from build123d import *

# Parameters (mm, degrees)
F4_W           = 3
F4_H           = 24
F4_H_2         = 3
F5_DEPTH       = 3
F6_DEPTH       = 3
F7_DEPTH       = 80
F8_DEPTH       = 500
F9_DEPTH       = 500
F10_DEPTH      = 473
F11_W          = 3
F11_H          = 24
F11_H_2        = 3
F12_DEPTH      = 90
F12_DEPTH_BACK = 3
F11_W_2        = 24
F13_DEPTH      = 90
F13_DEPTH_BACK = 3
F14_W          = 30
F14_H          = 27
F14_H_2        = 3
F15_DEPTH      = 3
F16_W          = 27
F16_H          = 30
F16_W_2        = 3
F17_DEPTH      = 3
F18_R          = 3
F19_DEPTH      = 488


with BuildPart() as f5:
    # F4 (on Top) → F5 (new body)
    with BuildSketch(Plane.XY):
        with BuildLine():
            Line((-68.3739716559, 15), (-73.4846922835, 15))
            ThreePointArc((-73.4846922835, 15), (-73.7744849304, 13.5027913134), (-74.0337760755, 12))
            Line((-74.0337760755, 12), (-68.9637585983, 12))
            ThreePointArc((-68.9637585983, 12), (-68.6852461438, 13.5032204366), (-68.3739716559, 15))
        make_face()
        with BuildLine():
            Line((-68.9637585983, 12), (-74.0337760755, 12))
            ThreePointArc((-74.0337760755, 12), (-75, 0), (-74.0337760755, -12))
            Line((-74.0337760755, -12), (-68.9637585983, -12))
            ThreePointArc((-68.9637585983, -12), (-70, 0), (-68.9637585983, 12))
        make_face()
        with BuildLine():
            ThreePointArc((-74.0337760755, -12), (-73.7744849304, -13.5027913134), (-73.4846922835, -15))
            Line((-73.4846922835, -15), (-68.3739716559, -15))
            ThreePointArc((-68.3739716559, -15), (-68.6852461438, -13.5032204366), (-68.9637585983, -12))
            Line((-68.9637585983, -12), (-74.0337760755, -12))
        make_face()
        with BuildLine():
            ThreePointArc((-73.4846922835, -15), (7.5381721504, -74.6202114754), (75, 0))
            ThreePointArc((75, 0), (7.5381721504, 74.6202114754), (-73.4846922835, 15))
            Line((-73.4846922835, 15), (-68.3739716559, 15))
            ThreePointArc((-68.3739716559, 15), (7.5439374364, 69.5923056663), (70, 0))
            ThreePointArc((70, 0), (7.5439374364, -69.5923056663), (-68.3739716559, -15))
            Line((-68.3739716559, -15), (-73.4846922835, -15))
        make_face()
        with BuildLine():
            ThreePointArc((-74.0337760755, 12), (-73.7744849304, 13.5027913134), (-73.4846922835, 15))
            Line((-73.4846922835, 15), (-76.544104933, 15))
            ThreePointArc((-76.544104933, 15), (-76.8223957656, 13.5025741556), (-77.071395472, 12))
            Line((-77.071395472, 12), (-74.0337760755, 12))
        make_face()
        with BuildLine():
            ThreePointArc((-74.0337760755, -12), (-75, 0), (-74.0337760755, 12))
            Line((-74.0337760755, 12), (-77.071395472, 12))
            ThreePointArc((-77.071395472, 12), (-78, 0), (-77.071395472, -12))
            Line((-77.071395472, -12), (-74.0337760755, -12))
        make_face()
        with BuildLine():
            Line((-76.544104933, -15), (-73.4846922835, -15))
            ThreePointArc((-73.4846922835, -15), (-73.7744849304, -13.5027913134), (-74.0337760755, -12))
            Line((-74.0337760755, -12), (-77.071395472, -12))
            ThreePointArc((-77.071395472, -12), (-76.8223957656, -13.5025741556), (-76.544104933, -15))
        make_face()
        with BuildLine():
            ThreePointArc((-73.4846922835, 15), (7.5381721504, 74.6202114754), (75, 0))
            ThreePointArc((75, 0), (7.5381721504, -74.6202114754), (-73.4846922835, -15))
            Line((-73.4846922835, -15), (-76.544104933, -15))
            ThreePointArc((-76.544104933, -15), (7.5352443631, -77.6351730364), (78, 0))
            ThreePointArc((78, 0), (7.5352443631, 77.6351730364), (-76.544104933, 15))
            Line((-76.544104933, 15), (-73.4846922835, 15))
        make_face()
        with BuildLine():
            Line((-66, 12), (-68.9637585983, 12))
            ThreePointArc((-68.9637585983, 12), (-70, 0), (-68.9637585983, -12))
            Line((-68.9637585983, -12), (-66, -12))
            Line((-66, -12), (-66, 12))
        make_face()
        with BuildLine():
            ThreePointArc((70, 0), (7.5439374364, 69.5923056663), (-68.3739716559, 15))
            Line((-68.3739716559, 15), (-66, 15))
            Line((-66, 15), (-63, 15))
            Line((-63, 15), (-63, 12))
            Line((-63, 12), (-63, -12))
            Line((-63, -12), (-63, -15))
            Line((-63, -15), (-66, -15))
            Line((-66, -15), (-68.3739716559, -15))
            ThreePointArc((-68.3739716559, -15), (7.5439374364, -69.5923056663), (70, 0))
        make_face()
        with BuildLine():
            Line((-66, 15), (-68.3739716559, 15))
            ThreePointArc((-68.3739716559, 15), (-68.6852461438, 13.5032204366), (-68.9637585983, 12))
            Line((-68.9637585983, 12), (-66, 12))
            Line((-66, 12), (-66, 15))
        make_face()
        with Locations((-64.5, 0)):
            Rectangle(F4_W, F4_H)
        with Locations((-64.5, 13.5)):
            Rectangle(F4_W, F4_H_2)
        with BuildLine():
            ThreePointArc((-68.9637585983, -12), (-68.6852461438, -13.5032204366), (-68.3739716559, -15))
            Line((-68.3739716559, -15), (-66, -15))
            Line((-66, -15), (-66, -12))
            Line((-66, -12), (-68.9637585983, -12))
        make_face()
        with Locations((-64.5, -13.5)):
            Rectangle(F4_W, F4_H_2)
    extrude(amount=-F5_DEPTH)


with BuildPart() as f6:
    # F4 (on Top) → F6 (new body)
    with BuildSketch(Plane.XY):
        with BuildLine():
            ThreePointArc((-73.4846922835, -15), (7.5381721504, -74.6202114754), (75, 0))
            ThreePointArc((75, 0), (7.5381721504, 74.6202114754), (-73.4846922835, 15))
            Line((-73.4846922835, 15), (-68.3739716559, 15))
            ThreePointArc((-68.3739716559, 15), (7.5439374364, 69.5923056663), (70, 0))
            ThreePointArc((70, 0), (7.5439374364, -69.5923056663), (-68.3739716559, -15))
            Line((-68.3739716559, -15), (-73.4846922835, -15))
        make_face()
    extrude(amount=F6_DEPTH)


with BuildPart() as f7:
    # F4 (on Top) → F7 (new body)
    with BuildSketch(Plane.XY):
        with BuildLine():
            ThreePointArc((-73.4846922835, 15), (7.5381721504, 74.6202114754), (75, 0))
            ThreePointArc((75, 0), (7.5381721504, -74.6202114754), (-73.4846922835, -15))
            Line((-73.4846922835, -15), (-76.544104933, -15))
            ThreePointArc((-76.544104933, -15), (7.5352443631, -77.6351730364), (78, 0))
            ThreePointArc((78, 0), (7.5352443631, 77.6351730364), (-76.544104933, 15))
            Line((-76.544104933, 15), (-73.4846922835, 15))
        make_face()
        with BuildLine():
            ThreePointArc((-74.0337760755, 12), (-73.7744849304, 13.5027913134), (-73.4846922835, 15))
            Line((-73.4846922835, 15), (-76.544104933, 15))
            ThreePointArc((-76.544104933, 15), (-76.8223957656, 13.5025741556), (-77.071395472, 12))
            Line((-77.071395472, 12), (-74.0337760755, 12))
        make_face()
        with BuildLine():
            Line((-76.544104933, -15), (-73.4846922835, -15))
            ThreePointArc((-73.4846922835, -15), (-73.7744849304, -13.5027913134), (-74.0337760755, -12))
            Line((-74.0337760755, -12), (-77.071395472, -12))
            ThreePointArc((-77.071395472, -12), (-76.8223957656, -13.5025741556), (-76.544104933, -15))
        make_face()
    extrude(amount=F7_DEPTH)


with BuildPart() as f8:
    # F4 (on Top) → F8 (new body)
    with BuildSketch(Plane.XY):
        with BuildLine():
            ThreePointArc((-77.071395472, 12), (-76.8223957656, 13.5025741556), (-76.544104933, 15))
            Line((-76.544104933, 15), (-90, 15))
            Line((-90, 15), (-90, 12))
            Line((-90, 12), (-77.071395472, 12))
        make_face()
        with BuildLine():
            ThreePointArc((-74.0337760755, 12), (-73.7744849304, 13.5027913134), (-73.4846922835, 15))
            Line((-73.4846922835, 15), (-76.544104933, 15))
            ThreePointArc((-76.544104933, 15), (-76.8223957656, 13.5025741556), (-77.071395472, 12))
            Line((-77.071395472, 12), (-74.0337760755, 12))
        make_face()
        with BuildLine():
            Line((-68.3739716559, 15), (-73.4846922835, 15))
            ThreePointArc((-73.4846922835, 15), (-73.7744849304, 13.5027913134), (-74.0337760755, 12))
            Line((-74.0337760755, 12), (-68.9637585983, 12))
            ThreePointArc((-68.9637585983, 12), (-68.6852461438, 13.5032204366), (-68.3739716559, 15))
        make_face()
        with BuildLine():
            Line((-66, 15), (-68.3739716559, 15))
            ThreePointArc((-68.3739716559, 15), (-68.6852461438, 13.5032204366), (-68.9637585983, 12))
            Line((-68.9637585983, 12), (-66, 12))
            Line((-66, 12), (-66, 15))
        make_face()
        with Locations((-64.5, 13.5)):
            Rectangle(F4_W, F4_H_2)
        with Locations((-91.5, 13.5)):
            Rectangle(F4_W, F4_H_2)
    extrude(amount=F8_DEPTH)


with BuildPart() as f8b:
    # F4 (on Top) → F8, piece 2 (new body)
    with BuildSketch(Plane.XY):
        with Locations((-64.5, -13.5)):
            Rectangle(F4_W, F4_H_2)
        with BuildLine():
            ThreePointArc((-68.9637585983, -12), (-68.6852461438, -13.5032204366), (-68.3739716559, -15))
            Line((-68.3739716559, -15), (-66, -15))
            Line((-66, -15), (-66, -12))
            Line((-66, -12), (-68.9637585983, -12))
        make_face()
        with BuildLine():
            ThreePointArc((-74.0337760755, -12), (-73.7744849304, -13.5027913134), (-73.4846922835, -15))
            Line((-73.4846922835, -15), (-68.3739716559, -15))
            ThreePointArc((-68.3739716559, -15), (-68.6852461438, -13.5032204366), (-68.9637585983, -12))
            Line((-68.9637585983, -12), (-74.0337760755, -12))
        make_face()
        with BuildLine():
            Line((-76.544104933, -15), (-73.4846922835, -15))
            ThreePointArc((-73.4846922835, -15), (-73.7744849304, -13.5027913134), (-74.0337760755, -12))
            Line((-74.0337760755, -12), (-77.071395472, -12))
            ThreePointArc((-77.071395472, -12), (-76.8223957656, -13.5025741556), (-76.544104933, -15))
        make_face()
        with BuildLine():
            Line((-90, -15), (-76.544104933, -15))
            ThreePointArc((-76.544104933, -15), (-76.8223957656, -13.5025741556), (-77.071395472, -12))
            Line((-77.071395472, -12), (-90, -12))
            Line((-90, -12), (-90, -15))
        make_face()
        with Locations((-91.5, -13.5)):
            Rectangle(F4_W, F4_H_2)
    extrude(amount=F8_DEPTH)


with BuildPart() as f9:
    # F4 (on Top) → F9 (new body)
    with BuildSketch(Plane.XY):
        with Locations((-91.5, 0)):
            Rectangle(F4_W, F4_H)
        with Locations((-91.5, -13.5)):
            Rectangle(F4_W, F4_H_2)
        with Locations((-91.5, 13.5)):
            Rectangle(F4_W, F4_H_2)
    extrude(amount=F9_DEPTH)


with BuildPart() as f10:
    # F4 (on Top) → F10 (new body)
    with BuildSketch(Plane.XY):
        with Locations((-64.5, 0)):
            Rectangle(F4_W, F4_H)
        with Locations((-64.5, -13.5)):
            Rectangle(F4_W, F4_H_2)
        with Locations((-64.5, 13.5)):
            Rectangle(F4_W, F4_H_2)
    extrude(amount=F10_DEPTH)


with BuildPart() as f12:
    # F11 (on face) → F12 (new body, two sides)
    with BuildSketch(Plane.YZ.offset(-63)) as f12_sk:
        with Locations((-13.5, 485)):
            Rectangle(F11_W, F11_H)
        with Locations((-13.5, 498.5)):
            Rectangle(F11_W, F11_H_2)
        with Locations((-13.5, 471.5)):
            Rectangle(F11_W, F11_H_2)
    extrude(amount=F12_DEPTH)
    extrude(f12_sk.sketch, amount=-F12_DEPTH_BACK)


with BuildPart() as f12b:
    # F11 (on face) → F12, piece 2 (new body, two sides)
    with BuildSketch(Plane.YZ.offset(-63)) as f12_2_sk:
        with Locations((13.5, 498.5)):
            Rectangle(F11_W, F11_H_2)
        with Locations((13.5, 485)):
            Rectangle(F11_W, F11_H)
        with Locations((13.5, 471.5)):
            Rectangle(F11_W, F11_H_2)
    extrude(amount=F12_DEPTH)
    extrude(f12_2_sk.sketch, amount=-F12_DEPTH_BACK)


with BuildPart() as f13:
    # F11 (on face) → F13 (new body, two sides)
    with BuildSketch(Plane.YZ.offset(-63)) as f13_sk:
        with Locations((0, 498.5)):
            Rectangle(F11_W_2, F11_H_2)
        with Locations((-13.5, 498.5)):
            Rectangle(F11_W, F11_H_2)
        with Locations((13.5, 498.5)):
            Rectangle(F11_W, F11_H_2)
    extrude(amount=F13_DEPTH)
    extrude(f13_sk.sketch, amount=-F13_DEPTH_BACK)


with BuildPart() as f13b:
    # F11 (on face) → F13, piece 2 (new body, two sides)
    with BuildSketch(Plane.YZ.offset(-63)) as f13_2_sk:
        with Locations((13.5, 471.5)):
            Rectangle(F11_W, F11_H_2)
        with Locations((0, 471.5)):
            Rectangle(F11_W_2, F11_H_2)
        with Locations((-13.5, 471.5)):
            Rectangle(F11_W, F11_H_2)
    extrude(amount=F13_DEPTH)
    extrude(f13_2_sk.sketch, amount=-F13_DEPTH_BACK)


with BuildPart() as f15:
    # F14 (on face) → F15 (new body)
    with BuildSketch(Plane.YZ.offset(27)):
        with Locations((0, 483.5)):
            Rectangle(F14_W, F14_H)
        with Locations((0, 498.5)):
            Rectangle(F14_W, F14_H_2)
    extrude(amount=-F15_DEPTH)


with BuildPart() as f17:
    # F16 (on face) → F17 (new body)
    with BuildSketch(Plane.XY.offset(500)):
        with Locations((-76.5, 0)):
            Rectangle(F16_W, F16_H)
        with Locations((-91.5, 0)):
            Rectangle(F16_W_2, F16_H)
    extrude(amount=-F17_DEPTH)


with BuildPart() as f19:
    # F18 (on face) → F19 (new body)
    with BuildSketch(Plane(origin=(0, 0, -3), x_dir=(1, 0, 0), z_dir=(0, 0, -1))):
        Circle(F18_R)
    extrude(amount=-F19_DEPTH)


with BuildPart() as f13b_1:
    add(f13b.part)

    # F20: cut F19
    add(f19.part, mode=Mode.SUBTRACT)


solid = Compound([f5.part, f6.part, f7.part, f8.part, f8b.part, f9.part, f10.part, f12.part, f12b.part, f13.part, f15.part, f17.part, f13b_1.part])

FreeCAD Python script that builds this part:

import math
import FreeCAD as App
import Part
import Sketcher

V = App.Vector
Q = App.Units.Quantity


def add_polygon(sketch, points):
    """Adds a closed chain of lines whose ends are joined by coincident constraints."""
    first, n = sketch.GeometryCount, len(points)
    for a, b in zip(points, points[1:] + points[:1]):
        sketch.addGeometry(Part.LineSegment(App.Vector(*a, 0), App.Vector(*b, 0)), False)
    for i in range(n):
        sketch.addConstraint(Sketcher.Constraint("Coincident", first + i, 2, first + (i + 1) % n, 1))

doc = App.newDocument("Part")
body = doc.addObject("PartDesign::Body", "Body")

sketch1 = body.newObject("Sketcher::SketchObject", "Sketch")
sketch1.AttachmentSupport = (doc.getObject("XY_Plane"), [""])
sketch1.MapMode = "FlatFace"
sketch1.addGeometry(Part.ArcOfCircle(Part.Circle(V(0, 0, 0), V(0, 0, 1), 78), math.radians(168.91), math.radians(171.15)), False)
sketch1.addGeometry(Part.ArcOfCircle(Part.Circle(V(0, 0, 0), V(0, 0, 1), 78), math.radians(171.15), math.radians(188.85)), False)
sketch1.addGeometry(Part.ArcOfCircle(Part.Circle(V(0, 0, 0), V(0, 0, 1), 78), math.radians(-171.15), math.radians(-168.91)), False)
sketch1.addGeometry(Part.ArcOfCircle(Part.Circle(V(0, 0, 0), V(0, 0, 1), 78), math.radians(-169), math.radians(0)), False)
sketch1.addGeometry(Part.ArcOfCircle(Part.Circle(V(0, 0, 0), V(0, 0, 1), 78), math.radians(0), math.radians(169)), False)
sketch1.addConstraint(Sketcher.Constraint("Tangent", 0, 2, 1, 1))
sketch1.addConstraint(Sketcher.Constraint("Tangent", 1, 2, 2, 1))
sketch1.addConstraint(Sketcher.Constraint("Tangent", 2, 2, 3, 1))
sketch1.addConstraint(Sketcher.Constraint("Tangent", 3, 2, 4, 1))
sketch1.addConstraint(Sketcher.Constraint("Tangent", 4, 2, 0, 1))
sketch1.addConstraint(Sketcher.Constraint("Coincident", 0, 3, -1, 1))
sketch1.addConstraint(Sketcher.Constraint("Coincident", 2, 3, -1, 1))
sketch1.addConstraint(Sketcher.Constraint("PointOnObject", 3, 2, -1))
sketch1.addConstraint(Sketcher.Constraint("Vertical", 0, 2, 1, 2))
sketch1.addConstraint(Sketcher.Constraint("Vertical", 2, 2, 4, 2))
sketch1.addConstraint(Sketcher.Constraint("Radius", 0, Q("78 mm")))
sketch1.addConstraint(Sketcher.Constraint("DistanceY", -1, 1, 0, 2, Q("12 mm")))
sketch1.addConstraint(Sketcher.Constraint("DistanceY", 2, 2, -1, 1, Q("15 mm")))
pad1 = body.newObject("PartDesign::Pad", "Pad")
pad1.Profile = sketch1
pad1.Length = 3
pad1.Reversed = True
body2 = doc.addObject("PartDesign::Body", "Body001")

sketch2 = body2.newObject("Sketcher::SketchObject", "Sketch001")
sketch2.AttachmentSupport = (doc.getObject("XY_Plane001"), [""])
sketch2.MapMode = "FlatFace"
sketch2.addGeometry(Part.ArcOfCircle(Part.Circle(V(0, 0, 0), V(0, 0, 1), 75), math.radians(-168), math.radians(168)), False)
sketch2.addGeometry(Part.LineSegment(V(-73, 15, 0), V(-68, 15, 0)), False)
sketch2.addGeometry(Part.ArcOfCircle(Part.Circle(V(0, 0, 0), V(0, 0, 1), 70), math.radians(0), math.radians(168)), False)
sketch2.addGeometry(Part.ArcOfCircle(Part.Circle(V(0, 0, 0), V(0, 0, 1), 70), math.radians(-168), math.radians(0)), False)
sketch2.addGeometry(Part.LineSegment(V(-68, -15, 0), V(-73, -15, 0)), False)
sketch2.addConstraint(Sketcher.Constraint("Coincident", 0, 2, 1, 1))
sketch2.addConstraint(Sketcher.Constraint("Coincident", 1, 2, 2, 2))
sketch2.addConstraint(Sketcher.Constraint("Tangent", 2, 1, 3, 2))
sketch2.addConstraint(Sketcher.Constraint("Coincident", 3, 1, 4, 1))
sketch2.addConstraint(Sketcher.Constraint("Coincident", 4, 2, 0, 1))
sketch2.addConstraint(Sketcher.Constraint("Horizontal", 1))
sketch2.addConstraint(Sketcher.Constraint("Horizontal", 4))
sketch2.addConstraint(Sketcher.Constraint("Coincident", 0, 3, -1, 1))
sketch2.addConstraint(Sketcher.Constraint("Coincident", 2, 3, -1, 1))
sketch2.addConstraint(Sketcher.Constraint("Equal", 2, 3))
sketch2.addConstraint(Sketcher.Constraint("PointOnObject", 2, 1, -1))
sketch2.addConstraint(Sketcher.Constraint("Vertical", 1, 2, 3, 1))
sketch2.addConstraint(Sketcher.Constraint("Radius", 0, Q("75 mm")))
sketch2.addConstraint(Sketcher.Constraint("Radius", 2, Q("70 mm")))
sketch2.addConstraint(Sketcher.Constraint("DistanceY", -1, 1, 0, 2, Q("15 mm")))
pad2 = body2.newObject("PartDesign::Pad", "Pad001")
pad2.Profile = sketch2
pad2.Length = 3
body3 = doc.addObject("PartDesign::Body", "Body002")

sketch3 = body3.newObject("Sketcher::SketchObject", "Sketch002")
sketch3.AttachmentSupport = (doc.getObject("XY_Plane002"), [""])
sketch3.MapMode = "FlatFace"
sketch3.addGeometry(Part.ArcOfCircle(Part.Circle(V(0, 0, 0), V(0, 0, 1), 75), math.radians(-168), math.radians(168)), False)
sketch3.addGeometry(Part.ArcOfCircle(Part.Circle(V(0, 0, 0), V(0, 0, 1), 75), math.radians(-170.79), math.radians(-168.46)), False)
sketch3.addGeometry(Part.LineSegment(V(-74, -12, 0), V(-77.1, -12, 0)), False)
sketch3.addGeometry(Part.ArcOfCircle(Part.Circle(V(0, 0, 0), V(0, 0, 1), 78), math.radians(-171.15), math.radians(-168.91)), False)
sketch3.addGeometry(Part.ArcOfCircle(Part.Circle(V(0, 0, 0), V(0, 0, 1), 78), math.radians(-169), math.radians(0)), False)
sketch3.addGeometry(Part.ArcOfCircle(Part.Circle(V(0, 0, 0), V(0, 0, 1), 78), math.radians(0), math.radians(169)), False)
sketch3.addGeometry(Part.ArcOfCircle(Part.Circle(V(0, 0, 0), V(0, 0, 1), 78), math.radians(168.91), math.radians(171.15)), False)
sketch3.addGeometry(Part.LineSegment(V(-77.1, 12, 0), V(-74, 12, 0)), False)
sketch3.addGeometry(Part.ArcOfCircle(Part.Circle(V(0, 0, 0), V(0, 0, 1), 75), math.radians(168.46), math.radians(170.79)), False)
sketch3.addConstraint(Sketcher.Constraint("Tangent", 0, 1, 1, 2))
sketch3.addConstraint(Sketcher.Constraint("Coincident", 1, 1, 2, 1))
sketch3.addConstraint(Sketcher.Constraint("Coincident", 2, 2, 3, 1))
sketch3.addConstraint(Sketcher.Constraint("Tangent", 3, 2, 4, 1))
sketch3.addConstraint(Sketcher.Constraint("Tangent", 4, 2, 5, 1))
sketch3.addConstraint(Sketcher.Constraint("Tangent", 5, 2, 6, 1))
sketch3.addConstraint(Sketcher.Constraint("Coincident", 6, 2, 7, 1))
sketch3.addConstraint(Sketcher.Constraint("Coincident", 7, 2, 8, 2))
sketch3.addConstraint(Sketcher.Constraint("Tangent", 8, 1, 0, 2))
sketch3.addConstraint(Sketcher.Constraint("Horizontal", 2))
sketch3.addConstraint(Sketcher.Constraint("Horizontal", 7))
sketch3.addConstraint(Sketcher.Constraint("Coincident", 0, 3, -1, 1))
sketch3.addConstraint(Sketcher.Constraint("Coincident", 3, 3, -1, 1))
sketch3.addConstraint(Sketcher.Constraint("Coincident", 5, 3, -1, 1))
sketch3.addConstraint(Sketcher.Constraint("Equal", 0, 1))
sketch3.addConstraint(Sketcher.Constraint("Equal", 5, 6))
sketch3.addConstraint(Sketcher.Constraint("Equal", 1, 8))
sketch3.addConstraint(Sketcher.Constraint("PointOnObject", 4, 2, -1))
sketch3.addConstraint(Sketcher.Constraint("Horizontal", 0, 1, 3, 2))
sketch3.addConstraint(Sketcher.Constraint("Horizontal", 5, 2, 8, 1))
sketch3.addConstraint(Sketcher.Constraint("Vertical", 3, 2, 5, 2))
sketch3.addConstraint(Sketcher.Constraint("Vertical", 2, 2, 6, 2))
sketch3.addConstraint(Sketcher.Constraint("Radius", 0, Q("75 mm")))
sketch3.addConstraint(Sketcher.Constraint("Radius", 3, Q("78 mm")))
sketch3.addConstraint(Sketcher.Constraint("DistanceY", 0, 1, -1, 1, Q("15 mm")))
sketch3.addConstraint(Sketcher.Constraint("DistanceY", 1, 1, -1, 1, Q("12 mm")))
pad3 = body3.newObject("PartDesign::Pad", "Pad002")
pad3.Profile = sketch3
pad3.Length = 80
body4 = doc.addObject("PartDesign::Body", "Body003")

sketch4 = body4.newObject("Sketcher::SketchObject", "Sketch003")
sketch4.AttachmentSupport = (doc.getObject("XY_Plane003"), [""])
sketch4.MapMode = "FlatFace"
add_polygon(sketch4, [(-63, 12), (-63, 15), (-93, 15), (-93, 12)])
sketch4.addConstraint(Sketcher.Constraint("Vertical", 0))
sketch4.addConstraint(Sketcher.Constraint("Horizontal", 1))
sketch4.addConstraint(Sketcher.Constraint("Vertical", 2))
sketch4.addConstraint(Sketcher.Constraint("Horizontal", 3))
sketch4.addConstraint(Sketcher.Constraint("DistanceX", 1, 2, 1, 1, Q("30 mm")))
sketch4.addConstraint(Sketcher.Constraint("DistanceY", 0, 1, 0, 2, Q("3 mm")))
sketch4.addConstraint(Sketcher.Constraint("DistanceX", 0, 2, -1, 1, Q("63 mm")))
sketch4.addConstraint(Sketcher.Constraint("DistanceY", -1, 1, 0, 2, Q("15 mm")))
pad4 = body4.newObject("PartDesign::Pad", "Pad003")
pad4.Profile = sketch4
pad4.Length = 500
body5 = doc.addObject("PartDesign::Body", "Body004")

sketch5 = body5.newObject("Sketcher::SketchObject", "Sketch004")
sketch5.AttachmentSupport = (doc.getObject("XY_Plane004"), [""])
sketch5.MapMode = "FlatFace"
add_polygon(sketch5, [(-63, -15), (-63, -12), (-93, -12), (-93, -15)])
sketch5.addConstraint(Sketcher.Constraint("Vertical", 0))
sketch5.addConstraint(Sketcher.Constraint("Horizontal", 1))
sketch5.addConstraint(Sketcher.Constraint("Vertical", 2))
sketch5.addConstraint(Sketcher.Constraint("Horizontal", 3))
sketch5.addConstraint(Sketcher.Constraint("DistanceX", 1, 2, 1, 1, Q("30 mm")))
sketch5.addConstraint(Sketcher.Constraint("DistanceY", 0, 1, 0, 2, Q("3 mm")))
sketch5.addConstraint(Sketcher.Constraint("DistanceX", 0, 2, -1, 1, Q("63 mm")))
sketch5.addConstraint(Sketcher.Constraint("DistanceY", 0, 2, -1, 1, Q("12 mm")))
pad5 = body5.newObject("PartDesign::Pad", "Pad004")
pad5.Profile = sketch5
pad5.Length = 500
body6 = doc.addObject("PartDesign::Body", "Body005")

sketch6 = body6.newObject("Sketcher::SketchObject", "Sketch005")
sketch6.AttachmentSupport = (doc.getObject("XY_Plane005"), [""])
sketch6.MapMode = "FlatFace"
add_polygon(sketch6, [(-93, -15), (-90, -15), (-90, 15), (-93, 15)])
sketch6.addConstraint(Sketcher.Constraint("Horizontal", 0))
sketch6.addConstraint(Sketcher.Constraint("Vertical", 1))
sketch6.addConstraint(Sketcher.Constraint("Horizontal", 2))
sketch6.addConstraint(Sketcher.Constraint("Vertical", 3))
sketch6.addConstraint(Sketcher.Constraint("DistanceX", 0, 1, 0, 2, Q("3 mm")))
sketch6.addConstraint(Sketcher.Constraint("DistanceY", 1, 1, 1, 2, Q("30 mm")))
sketch6.addConstraint(Sketcher.Constraint("DistanceX", 0, 2, -1, 1, Q("90 mm")))
sketch6.addConstraint(Sketcher.Constraint("DistanceY", 0, 2, -1, 1, Q("15 mm")))
pad6 = body6.newObject("PartDesign::Pad", "Pad005")
pad6.Profile = sketch6
pad6.Length = 500
body7 = doc.addObject("PartDesign::Body", "Body006")

sketch7 = body7.newObject("Sketcher::SketchObject", "Sketch006")
sketch7.AttachmentSupport = (doc.getObject("XY_Plane006"), [""])
sketch7.MapMode = "FlatFace"
add_polygon(sketch7, [(-66, -15), (-63, -15), (-63, 15), (-66, 15)])
sketch7.addConstraint(Sketcher.Constraint("Horizontal", 0))
sketch7.addConstraint(Sketcher.Constraint("Vertical", 1))
sketch7.addConstraint(Sketcher.Constraint("Horizontal", 2))
sketch7.addConstraint(Sketcher.Constraint("Vertical", 3))
sketch7.addConstraint(Sketcher.Constraint("DistanceX", 0, 1, 0, 2, Q("3 mm")))
sketch7.addConstraint(Sketcher.Constraint("DistanceY", 1, 1, 1, 2, Q("30 mm")))
sketch7.addConstraint(Sketcher.Constraint("DistanceX", 0, 2, -1, 1, Q("63 mm")))
sketch7.addConstraint(Sketcher.Constraint("DistanceY", 0, 2, -1, 1, Q("15 mm")))
pad7 = body7.newObject("PartDesign::Pad", "Pad006")
pad7.Profile = sketch7
pad7.Length = 473
body8 = doc.addObject("PartDesign::Body", "Body007")

sketch8 = body8.newObject("Sketcher::SketchObject", "Sketch007")
sketch8.AttachmentSupport = (doc.getObject("YZ_Plane007"), [""])
sketch8.MapMode = "FlatFace"
sketch8.AttachmentOffset = App.Placement(V(0, 0, -63), App.Rotation())
add_polygon(sketch8, [(-12, 500), (-15, 500), (-15, 470), (-12, 470)])
sketch8.addConstraint(Sketcher.Constraint("Horizontal", 0))
sketch8.addConstraint(Sketcher.Constraint("Vertical", 1))
sketch8.addConstraint(Sketcher.Constraint("Horizontal", 2))
sketch8.addConstraint(Sketcher.Constraint("Vertical", 3))
sketch8.addConstraint(Sketcher.Constraint("DistanceX", 0, 2, 0, 1, Q("3 mm")))
sketch8.addConstraint(Sketcher.Constraint("DistanceY", 1, 2, 1, 1, Q("30 mm")))
sketch8.addConstraint(Sketcher.Constraint("DistanceX", 0, 2, -1, 1, Q("15 mm")))
sketch8.addConstraint(Sketcher.Constraint("DistanceY", -1, 1, 0, 2, Q("500 mm")))
pad8 = body8.newObject("PartDesign::Pad", "Pad007")
pad8.Profile = sketch8
pad8.Type = "TwoLengths"
pad8.Length = 90
pad8.Length2 = 3
body9 = doc.addObject("PartDesign::Body", "Body008")

sketch9 = body9.newObject("Sketcher::SketchObject", "Sketch008")
sketch9.AttachmentSupport = (doc.getObject("YZ_Plane008"), [""])
sketch9.MapMode = "FlatFace"
sketch9.AttachmentOffset = App.Placement(V(0, 0, -63), App.Rotation())
add_polygon(sketch9, [(12, 500), (12, 470), (15, 470), (15, 500)])
sketch9.addConstraint(Sketcher.Constraint("Vertical", 0))
sketch9.addConstraint(Sketcher.Constraint("Horizontal", 1))
sketch9.addConstraint(Sketcher.Constraint("Vertical", 2))
sketch9.addConstraint(Sketcher.Constraint("Horizontal", 3))
sketch9.addConstraint(Sketcher.Constraint("DistanceX", 1, 1, 1, 2, Q("3 mm")))
sketch9.addConstraint(Sketcher.Constraint("DistanceY", 0, 2, 0, 1, Q("30 mm")))
sketch9.addConstraint(Sketcher.Constraint("DistanceX", -1, 1, 0, 2, Q("12 mm")))
sketch9.addConstraint(Sketcher.Constraint("DistanceY", -1, 1, 0, 2, Q("470 mm")))
pad9 = body9.newObject("PartDesign::Pad", "Pad008")
pad9.Profile = sketch9
pad9.Type = "TwoLengths"
pad9.Length = 90
pad9.Length2 = 3
body10 = doc.addObject("PartDesign::Body", "Body009")

sketch10 = body10.newObject("Sketcher::SketchObject", "Sketch009")
sketch10.AttachmentSupport = (doc.getObject("YZ_Plane009"), [""])
sketch10.MapMode = "FlatFace"
sketch10.AttachmentOffset = App.Placement(V(0, 0, -63), App.Rotation())
add_polygon(sketch10, [(-15, 500), (-15, 497), (15, 497), (15, 500)])
sketch10.addConstraint(Sketcher.Constraint("Vertical", 0))
sketch10.addConstraint(Sketcher.Constraint("Horizontal", 1))
sketch10.addConstraint(Sketcher.Constraint("Vertical", 2))
sketch10.addConstraint(Sketcher.Constraint("Horizontal", 3))
sketch10.addConstraint(Sketcher.Constraint("DistanceX", 1, 1, 1, 2, Q("30 mm")))
sketch10.addConstraint(Sketcher.Constraint("DistanceY", 0, 2, 0, 1, Q("3 mm")))
sketch10.addConstraint(Sketcher.Constraint("DistanceX", 0, 2, -1, 1, Q("15 mm")))
sketch10.addConstraint(Sketcher.Constraint("DistanceY", -1, 1, 0, 2, Q("497 mm")))
pad10 = body10.newObject("PartDesign::Pad", "Pad009")
pad10.Profile = sketch10
pad10.Type = "TwoLengths"
pad10.Length = 90
pad10.Length2 = 3
body11 = doc.addObject("PartDesign::Body", "Body010")

sketch11 = body11.newObject("Sketcher::SketchObject", "Sketch010")
sketch11.AttachmentSupport = (doc.getObject("YZ_Plane010"), [""])
sketch11.MapMode = "FlatFace"
sketch11.AttachmentOffset = App.Placement(V(0, 0, -63), App.Rotation())
add_polygon(sketch11, [(15, 470), (15, 473), (-15, 473), (-15, 470)])
sketch11.addConstraint(Sketcher.Constraint("Vertical", 0))
sketch11.addConstraint(Sketcher.Constraint("Horizontal", 1))
sketch11.addConstraint(Sketcher.Constraint("Vertical", 2))
sketch11.addConstraint(Sketcher.Constraint("Horizontal", 3))
sketch11.addConstraint(Sketcher.Constraint("DistanceX", 1, 2, 1, 1, Q("30 mm")))
sketch11.addConstraint(Sketcher.Constraint("DistanceY", 0, 1, 0, 2, Q("3 mm")))
sketch11.addConstraint(Sketcher.Constraint("DistanceX", -1, 1, 0, 2, Q("15 mm")))
sketch11.addConstraint(Sketcher.Constraint("DistanceY", -1, 1, 0, 2, Q("473 mm")))
pad11 = body11.newObject("PartDesign::Pad", "Pad010")
pad11.Profile = sketch11
pad11.Type = "TwoLengths"
pad11.Length = 90
pad11.Length2 = 3
body12 = doc.addObject("PartDesign::Body", "Body011")

sketch12 = body12.newObject("Sketcher::SketchObject", "Sketch011")
sketch12.AttachmentSupport = (doc.getObject("YZ_Plane011"), [""])
sketch12.MapMode = "FlatFace"
sketch12.AttachmentOffset = App.Placement(V(0, 0, 27), App.Rotation())
add_polygon(sketch12, [(-15, 470), (15, 470), (15, 500), (-15, 500)])
sketch12.addConstraint(Sketcher.Constraint("Horizontal", 0))
sketch12.addConstraint(Sketcher.Constraint("Vertical", 1))
sketch12.addConstraint(Sketcher.Constraint("Horizontal", 2))
sketch12.addConstraint(Sketcher.Constraint("Vertical", 3))
sketch12.addConstraint(Sketcher.Constraint("Equal", 2, 1))
sketch12.addConstraint(Sketcher.Constraint("DistanceX", 0, 1, 0, 2, Q("30 mm")))
sketch12.addConstraint(Sketcher.Constraint("DistanceX", -1, 1, 0, 2, Q("15 mm")))
sketch12.addConstraint(Sketcher.Constraint("DistanceY", -1, 1, 0, 2, Q("470 mm")))
pad12 = body12.newObject("PartDesign::Pad", "Pad011")
pad12.Profile = sketch12
pad12.Length = 3
pad12.Reversed = True
body13 = doc.addObject("PartDesign::Body", "Body012")

sketch13 = body13.newObject("Sketcher::SketchObject", "Sketch012")
sketch13.AttachmentSupport = (doc.getObject("XY_Plane012"), [""])
sketch13.MapMode = "FlatFace"
sketch13.AttachmentOffset = App.Placement(V(0, 0, 500), App.Rotation())
add_polygon(sketch13, [(-63, -15), (-63, 15), (-93, 15), (-93, -15)])
sketch13.addConstraint(Sketcher.Constraint("Vertical", 0))
sketch13.addConstraint(Sketcher.Constraint("Horizontal", 1))
sketch13.addConstraint(Sketcher.Constraint("Vertical", 2))
sketch13.addConstraint(Sketcher.Constraint("Horizontal", 3))
sketch13.addConstraint(Sketcher.Constraint("Equal", 3, 0))
sketch13.addConstraint(Sketcher.Constraint("DistanceX", 1, 2, 1, 1, Q("30 mm")))
sketch13.addConstraint(Sketcher.Constraint("DistanceX", 0, 2, -1, 1, Q("63 mm")))
sketch13.addConstraint(Sketcher.Constraint("DistanceY", -1, 1, 0, 2, Q("15 mm")))
pad13 = body13.newObject("PartDesign::Pad", "Pad012")
pad13.Profile = sketch13
pad13.Length = 3
pad13.Reversed = True
body14 = doc.addObject("PartDesign::Body", "Body013")

sketch14 = body14.newObject("Sketcher::SketchObject", "Sketch013")
sketch14.AttachmentSupport = (doc.getObject("XY_Plane013"), [""])
sketch14.MapMode = "FlatFace"
sketch14.AttachmentOffset = App.Placement(V(0, 0, -3), App.Rotation())
sketch14.addGeometry(Part.Circle(V(0, 0, 0), V(0, 0, 1), 3), False)
sketch14.addConstraint(Sketcher.Constraint("Coincident", 0, 3, -1, 1))
sketch14.addConstraint(Sketcher.Constraint("Diameter", 0, Q("6 mm")))
pad14 = body14.newObject("PartDesign::Pad", "Pad013")
pad14.Profile = sketch14
pad14.Length = 488
doc.recompute()

boolean = body11.newObject("PartDesign::Boolean", "Boolean")
boolean.Type = "Cut"
boolean.addObjects([body14])

doc.recompute()
